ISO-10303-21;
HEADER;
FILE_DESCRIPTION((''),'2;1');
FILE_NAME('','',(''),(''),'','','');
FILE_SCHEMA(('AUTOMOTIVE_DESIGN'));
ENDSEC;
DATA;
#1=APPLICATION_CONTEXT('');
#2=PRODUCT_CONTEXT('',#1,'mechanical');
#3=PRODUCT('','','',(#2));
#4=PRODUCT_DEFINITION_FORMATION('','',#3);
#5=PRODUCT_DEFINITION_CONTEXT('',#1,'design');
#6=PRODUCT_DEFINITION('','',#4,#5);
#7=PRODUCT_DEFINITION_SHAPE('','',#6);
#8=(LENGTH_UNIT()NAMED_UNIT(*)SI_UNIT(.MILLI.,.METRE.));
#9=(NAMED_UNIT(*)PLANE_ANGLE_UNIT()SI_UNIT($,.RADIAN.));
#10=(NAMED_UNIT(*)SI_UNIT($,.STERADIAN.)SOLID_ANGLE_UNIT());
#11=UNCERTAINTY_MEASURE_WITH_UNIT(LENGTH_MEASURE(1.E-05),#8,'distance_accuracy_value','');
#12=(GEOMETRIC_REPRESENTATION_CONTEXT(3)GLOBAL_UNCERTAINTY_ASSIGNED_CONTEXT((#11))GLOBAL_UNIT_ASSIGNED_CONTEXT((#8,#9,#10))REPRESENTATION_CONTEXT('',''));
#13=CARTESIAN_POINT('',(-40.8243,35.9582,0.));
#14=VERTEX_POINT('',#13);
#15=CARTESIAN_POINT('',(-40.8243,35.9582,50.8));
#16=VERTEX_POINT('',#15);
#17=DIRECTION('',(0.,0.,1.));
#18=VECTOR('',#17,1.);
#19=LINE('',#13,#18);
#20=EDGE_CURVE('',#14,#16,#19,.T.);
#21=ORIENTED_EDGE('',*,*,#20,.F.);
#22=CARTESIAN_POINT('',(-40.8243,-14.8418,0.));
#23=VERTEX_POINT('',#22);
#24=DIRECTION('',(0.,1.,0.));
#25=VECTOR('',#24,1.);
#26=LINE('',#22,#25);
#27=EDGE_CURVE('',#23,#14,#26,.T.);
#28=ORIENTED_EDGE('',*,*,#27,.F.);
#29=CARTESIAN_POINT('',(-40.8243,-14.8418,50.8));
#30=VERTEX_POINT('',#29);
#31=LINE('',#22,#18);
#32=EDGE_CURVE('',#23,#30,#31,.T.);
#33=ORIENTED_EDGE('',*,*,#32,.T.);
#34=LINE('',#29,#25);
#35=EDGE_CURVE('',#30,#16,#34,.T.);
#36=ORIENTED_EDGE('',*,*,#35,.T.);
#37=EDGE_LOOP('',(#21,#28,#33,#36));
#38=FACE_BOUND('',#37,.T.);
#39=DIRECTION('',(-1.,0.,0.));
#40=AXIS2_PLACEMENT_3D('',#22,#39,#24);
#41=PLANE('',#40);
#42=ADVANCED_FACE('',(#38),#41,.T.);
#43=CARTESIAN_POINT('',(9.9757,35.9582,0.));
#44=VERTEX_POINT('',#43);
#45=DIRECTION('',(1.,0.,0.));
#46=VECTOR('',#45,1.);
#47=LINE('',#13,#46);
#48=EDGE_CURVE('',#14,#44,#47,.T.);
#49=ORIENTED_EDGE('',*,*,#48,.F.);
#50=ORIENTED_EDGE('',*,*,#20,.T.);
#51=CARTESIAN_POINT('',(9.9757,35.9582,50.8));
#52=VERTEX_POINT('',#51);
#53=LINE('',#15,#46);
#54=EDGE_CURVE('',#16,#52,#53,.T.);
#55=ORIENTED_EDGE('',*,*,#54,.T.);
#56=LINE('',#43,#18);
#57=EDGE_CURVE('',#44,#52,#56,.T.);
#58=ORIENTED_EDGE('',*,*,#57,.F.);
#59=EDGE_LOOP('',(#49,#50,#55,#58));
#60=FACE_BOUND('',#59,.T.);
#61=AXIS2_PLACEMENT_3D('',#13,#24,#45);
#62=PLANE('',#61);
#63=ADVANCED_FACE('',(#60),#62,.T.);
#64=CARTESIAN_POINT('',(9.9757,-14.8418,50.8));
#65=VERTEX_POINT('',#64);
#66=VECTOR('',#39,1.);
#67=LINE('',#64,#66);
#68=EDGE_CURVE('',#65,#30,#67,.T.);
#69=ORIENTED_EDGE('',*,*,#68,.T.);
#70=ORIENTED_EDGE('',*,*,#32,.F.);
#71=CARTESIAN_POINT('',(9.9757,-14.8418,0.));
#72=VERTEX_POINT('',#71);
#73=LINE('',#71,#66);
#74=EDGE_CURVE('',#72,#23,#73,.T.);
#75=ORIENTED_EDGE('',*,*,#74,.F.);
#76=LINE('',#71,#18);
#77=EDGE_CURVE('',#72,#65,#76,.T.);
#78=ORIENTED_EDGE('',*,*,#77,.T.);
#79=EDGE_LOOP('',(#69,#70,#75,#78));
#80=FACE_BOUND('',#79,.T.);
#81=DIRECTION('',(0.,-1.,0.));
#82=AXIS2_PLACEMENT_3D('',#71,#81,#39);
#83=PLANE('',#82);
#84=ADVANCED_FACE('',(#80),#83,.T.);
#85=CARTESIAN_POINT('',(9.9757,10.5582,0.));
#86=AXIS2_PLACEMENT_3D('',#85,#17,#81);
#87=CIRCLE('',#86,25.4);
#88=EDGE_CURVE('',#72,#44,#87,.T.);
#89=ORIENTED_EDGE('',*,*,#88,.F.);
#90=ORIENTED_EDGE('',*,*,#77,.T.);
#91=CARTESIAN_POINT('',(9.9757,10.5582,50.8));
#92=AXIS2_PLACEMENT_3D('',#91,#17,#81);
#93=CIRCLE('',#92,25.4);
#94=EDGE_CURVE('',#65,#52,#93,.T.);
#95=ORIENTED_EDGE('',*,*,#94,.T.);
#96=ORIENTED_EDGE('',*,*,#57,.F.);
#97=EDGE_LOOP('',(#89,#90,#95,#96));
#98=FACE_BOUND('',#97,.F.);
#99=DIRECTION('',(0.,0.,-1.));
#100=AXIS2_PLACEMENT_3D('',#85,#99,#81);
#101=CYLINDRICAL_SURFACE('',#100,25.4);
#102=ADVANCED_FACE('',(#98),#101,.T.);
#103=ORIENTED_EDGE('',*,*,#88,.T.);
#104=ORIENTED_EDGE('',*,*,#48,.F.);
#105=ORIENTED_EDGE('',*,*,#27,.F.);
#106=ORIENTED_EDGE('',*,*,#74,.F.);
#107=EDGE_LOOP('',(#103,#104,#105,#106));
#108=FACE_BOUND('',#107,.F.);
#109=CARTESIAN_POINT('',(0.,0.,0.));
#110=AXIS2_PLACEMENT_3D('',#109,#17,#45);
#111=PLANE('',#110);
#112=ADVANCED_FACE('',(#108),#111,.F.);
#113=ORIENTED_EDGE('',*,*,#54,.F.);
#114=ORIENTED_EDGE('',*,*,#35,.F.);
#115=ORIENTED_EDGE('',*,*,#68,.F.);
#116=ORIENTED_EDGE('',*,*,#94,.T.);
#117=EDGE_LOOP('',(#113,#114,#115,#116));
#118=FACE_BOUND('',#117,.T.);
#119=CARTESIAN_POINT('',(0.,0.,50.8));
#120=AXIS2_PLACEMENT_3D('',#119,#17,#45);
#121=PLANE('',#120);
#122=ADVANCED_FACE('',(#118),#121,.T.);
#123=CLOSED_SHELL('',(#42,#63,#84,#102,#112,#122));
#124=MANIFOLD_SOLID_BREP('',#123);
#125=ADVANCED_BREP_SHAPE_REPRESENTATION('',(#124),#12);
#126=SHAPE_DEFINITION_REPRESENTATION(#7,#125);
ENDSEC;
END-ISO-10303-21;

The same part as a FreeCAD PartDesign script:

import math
import FreeCAD as App
import Part
import Sketcher
Q = App.Units.Quantity

doc = App.newDocument("Part")
params = doc.addObject("Spreadsheet::Sheet", "Params")
for row, (alias, value) in enumerate([
    ("sketch1_radius", "1 in"),
    ("pad1_length", "2 in"),
], start=1):
    params.set(f"A{row}", alias)
    params.set(f"B{row}", "=" + value)
    params.setAlias(f"B{row}", alias)

body = doc.addObject("PartDesign::Body", "Body")

# Sketch on XY plane
sketch1 = body.newObject("Sketcher::SketchObject", "Sketch")
sketch1.AttachmentSupport = (doc.getObject("XY_Plane"), [""])
sketch1.MapMode = "FlatFace"
sketch1.addGeometry(Part.LineSegment(App.Vector(10, 36, 0), App.Vector(-41, 36, 0)), False)
sketch1.addGeometry(Part.LineSegment(App.Vector(-41, 36, 0), App.Vector(-41, -15, 0)), False)
sketch1.addGeometry(Part.LineSegment(App.Vector(-41, -15, 0), App.Vector(10, -15, 0)), False)
sketch1.addGeometry(Part.ArcOfCircle(Part.Circle(App.Vector(10, 11, 0), App.Vector(0, 0, 1), 25), math.radians(-90), math.radians(90)), False)
sketch1.addConstraint(Sketcher.Constraint("Coincident", 0, 2, 1, 1))
sketch1.addConstraint(Sketcher.Constraint("Coincident", 1, 2, 2, 1))
sketch1.addConstraint(Sketcher.Constraint("Tangent", 2, 2, 3, 1))
sketch1.addConstraint(Sketcher.Constraint("Tangent", 3, 2, 0, 1))
sketch1.addConstraint(Sketcher.Constraint("Horizontal", 0))
sketch1.addConstraint(Sketcher.Constraint("Vertical", 1))
sketch1.addConstraint(Sketcher.Constraint("Horizontal", 2))
sketch1.addConstraint(Sketcher.Constraint("Equal", 2, 1))
sketch1.addConstraint(Sketcher.Constraint("Radius", 3, Q("1 in")))
sketch1.addConstraint(Sketcher.Constraint("DistanceX", -1, 1, 3, 3, 9.9757))
sketch1.addConstraint(Sketcher.Constraint("DistanceY", -1, 1, 3, 3, 10.5582))
sketch1.setExpression("Constraints[8]", "Params.sketch1_radius")
pad1 = body.newObject("PartDesign::Pad", "Pad")
pad1.Profile = sketch1
pad1.setExpression("Length", "Params.pad1_length")

doc.recompute()
